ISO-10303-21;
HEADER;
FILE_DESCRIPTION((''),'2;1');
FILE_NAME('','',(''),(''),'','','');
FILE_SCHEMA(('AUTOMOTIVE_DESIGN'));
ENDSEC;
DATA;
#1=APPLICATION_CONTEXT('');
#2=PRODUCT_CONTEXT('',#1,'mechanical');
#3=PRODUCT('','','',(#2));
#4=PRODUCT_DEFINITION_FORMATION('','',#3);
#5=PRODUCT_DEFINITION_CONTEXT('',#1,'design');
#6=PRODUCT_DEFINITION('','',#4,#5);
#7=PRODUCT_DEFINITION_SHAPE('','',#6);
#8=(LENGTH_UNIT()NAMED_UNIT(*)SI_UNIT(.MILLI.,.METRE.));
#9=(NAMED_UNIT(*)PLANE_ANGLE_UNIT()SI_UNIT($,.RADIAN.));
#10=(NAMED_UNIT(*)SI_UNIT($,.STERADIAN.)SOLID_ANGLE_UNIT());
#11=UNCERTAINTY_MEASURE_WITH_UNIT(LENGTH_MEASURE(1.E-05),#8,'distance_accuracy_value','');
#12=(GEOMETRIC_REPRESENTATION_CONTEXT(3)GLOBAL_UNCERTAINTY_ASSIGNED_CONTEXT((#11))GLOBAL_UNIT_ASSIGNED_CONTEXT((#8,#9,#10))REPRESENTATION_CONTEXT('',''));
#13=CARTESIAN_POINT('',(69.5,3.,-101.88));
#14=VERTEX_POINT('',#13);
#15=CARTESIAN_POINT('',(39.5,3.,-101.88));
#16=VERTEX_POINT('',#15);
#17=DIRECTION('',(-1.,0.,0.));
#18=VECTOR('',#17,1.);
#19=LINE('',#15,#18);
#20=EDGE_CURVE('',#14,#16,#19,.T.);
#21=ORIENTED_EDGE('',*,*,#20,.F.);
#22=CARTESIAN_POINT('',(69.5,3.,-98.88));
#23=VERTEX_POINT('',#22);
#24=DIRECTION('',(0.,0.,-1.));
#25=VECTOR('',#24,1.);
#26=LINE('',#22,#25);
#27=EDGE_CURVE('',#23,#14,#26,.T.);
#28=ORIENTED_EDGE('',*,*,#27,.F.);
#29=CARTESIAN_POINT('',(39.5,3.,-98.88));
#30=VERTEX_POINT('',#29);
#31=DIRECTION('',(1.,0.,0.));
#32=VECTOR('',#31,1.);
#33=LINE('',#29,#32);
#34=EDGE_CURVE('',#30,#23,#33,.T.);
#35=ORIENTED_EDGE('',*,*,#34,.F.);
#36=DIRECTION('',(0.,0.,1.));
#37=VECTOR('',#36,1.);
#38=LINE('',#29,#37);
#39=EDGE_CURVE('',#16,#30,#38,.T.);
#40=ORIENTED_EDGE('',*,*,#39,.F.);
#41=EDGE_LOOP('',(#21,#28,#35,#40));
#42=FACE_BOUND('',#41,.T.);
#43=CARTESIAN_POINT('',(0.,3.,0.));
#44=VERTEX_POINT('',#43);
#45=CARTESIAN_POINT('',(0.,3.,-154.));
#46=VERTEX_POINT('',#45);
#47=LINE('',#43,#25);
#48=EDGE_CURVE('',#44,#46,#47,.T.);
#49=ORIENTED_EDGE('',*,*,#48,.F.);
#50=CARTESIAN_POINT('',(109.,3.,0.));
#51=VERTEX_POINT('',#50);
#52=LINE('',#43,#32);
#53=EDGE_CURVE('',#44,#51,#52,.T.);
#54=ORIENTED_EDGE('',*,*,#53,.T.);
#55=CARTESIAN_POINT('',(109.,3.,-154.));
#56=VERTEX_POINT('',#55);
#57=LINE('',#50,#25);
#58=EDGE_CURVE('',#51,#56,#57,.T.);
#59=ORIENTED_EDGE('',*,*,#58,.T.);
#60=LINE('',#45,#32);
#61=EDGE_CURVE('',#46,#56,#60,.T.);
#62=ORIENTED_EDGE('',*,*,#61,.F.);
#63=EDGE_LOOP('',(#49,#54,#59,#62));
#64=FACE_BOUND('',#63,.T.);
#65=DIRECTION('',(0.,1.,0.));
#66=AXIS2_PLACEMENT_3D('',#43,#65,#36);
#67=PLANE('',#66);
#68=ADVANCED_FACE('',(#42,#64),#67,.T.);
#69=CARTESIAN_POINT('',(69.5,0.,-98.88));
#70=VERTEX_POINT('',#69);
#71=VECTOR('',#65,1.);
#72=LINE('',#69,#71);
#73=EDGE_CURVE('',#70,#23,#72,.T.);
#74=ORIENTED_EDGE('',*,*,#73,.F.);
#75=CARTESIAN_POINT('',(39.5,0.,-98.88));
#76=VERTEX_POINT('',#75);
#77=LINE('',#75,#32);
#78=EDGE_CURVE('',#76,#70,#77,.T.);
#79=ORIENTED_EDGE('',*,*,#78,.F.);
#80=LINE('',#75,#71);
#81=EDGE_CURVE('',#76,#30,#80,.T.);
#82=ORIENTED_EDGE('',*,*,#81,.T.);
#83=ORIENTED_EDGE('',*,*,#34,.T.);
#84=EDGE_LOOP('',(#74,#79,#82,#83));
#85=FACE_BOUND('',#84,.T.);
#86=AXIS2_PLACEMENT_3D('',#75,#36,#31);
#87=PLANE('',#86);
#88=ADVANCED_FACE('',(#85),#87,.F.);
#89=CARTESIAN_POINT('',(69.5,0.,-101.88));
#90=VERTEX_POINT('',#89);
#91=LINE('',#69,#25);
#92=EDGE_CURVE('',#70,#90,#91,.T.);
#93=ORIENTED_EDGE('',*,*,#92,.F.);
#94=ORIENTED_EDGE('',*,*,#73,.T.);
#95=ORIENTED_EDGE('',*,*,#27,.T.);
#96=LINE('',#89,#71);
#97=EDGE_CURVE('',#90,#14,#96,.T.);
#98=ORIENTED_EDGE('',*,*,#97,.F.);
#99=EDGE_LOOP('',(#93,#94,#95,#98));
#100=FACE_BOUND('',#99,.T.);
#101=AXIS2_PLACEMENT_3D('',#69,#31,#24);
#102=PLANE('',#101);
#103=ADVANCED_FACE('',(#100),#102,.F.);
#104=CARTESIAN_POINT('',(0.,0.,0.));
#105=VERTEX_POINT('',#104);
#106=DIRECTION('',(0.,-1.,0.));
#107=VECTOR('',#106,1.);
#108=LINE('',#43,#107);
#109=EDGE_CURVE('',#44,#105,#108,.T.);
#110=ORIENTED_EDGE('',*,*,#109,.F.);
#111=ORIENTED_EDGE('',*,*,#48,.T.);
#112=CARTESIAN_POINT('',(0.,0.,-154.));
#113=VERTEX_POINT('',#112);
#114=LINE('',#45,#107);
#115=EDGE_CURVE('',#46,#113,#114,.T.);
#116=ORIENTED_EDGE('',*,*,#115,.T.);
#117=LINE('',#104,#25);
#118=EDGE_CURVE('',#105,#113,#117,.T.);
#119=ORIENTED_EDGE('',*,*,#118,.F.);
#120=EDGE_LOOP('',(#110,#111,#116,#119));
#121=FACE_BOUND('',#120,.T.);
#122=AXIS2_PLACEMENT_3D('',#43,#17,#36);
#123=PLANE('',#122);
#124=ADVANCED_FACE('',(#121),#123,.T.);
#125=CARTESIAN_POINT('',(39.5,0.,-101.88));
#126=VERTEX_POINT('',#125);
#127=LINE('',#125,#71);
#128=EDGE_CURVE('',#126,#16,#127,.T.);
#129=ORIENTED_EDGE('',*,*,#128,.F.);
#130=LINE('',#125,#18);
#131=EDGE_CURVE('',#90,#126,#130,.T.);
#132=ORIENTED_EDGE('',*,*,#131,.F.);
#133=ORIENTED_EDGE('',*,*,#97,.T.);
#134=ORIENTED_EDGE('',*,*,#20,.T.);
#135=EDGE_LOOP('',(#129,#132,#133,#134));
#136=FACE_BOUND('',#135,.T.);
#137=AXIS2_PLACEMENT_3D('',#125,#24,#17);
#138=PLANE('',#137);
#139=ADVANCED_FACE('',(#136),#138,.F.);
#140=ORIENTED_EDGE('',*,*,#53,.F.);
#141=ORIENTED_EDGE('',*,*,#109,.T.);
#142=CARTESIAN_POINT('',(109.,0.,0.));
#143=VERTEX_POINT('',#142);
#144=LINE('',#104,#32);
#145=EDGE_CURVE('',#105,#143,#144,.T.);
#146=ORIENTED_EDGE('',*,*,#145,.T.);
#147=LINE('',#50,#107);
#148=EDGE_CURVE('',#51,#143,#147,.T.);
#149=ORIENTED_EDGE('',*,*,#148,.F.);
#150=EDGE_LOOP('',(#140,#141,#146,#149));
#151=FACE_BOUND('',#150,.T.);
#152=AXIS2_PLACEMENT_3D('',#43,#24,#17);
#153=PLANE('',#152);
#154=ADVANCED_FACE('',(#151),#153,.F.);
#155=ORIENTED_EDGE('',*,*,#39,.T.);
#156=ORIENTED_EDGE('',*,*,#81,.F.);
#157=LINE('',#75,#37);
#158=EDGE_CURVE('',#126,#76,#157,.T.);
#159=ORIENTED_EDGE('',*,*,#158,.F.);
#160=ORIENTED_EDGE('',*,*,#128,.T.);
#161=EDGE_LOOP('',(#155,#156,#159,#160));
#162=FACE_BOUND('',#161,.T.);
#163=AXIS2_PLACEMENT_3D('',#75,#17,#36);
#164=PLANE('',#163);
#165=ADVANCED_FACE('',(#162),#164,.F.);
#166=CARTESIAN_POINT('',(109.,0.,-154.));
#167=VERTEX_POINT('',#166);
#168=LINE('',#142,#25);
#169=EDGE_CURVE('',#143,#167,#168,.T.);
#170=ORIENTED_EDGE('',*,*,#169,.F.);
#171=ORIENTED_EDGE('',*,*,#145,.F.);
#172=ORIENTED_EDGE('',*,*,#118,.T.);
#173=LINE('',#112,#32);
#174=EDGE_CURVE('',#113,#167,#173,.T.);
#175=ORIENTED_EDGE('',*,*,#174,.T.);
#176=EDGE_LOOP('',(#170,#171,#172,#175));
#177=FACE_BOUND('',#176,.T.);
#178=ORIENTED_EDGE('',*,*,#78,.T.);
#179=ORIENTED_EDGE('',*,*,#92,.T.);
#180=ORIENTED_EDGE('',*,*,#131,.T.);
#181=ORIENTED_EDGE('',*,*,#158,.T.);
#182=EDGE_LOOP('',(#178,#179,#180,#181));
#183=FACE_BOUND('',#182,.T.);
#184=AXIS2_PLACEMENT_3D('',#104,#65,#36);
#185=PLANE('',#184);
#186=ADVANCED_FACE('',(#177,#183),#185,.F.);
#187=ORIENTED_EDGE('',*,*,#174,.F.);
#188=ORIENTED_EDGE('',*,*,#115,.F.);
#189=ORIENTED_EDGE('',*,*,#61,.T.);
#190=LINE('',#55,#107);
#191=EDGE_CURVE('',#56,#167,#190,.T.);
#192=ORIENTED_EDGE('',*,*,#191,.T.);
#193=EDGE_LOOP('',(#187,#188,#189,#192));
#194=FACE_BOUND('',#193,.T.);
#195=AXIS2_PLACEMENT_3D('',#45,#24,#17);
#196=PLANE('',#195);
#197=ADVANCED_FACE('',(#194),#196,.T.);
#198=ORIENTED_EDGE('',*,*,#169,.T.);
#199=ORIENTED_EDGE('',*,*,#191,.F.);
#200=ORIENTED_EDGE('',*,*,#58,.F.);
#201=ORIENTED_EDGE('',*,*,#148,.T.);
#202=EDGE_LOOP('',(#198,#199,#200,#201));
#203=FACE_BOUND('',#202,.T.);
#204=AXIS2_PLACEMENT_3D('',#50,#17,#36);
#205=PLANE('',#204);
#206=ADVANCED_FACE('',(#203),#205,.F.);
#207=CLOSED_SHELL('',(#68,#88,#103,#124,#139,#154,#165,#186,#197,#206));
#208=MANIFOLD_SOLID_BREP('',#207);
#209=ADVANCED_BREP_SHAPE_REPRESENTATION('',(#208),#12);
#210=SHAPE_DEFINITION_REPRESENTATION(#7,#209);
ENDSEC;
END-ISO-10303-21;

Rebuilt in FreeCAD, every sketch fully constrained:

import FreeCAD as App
import Part
import Sketcher


def add_polygon(sketch, points):
    """Adds a closed chain of lines whose ends are joined by coincident constraints."""
    first, n = sketch.GeometryCount, len(points)
    for a, b in zip(points, points[1:] + points[:1]):
        sketch.addGeometry(Part.LineSegment(App.Vector(*a, 0), App.Vector(*b, 0)), False)
    for i in range(n):
        sketch.addConstraint(Sketcher.Constraint("Coincident", first + i, 2, first + (i + 1) % n, 1))

doc = App.newDocument("Part")
body = doc.addObject("PartDesign::Body", "Body")

sketch1 = doc.addObject("Sketcher::SketchObject", "Sketch")
body.addObject(sketch1)
sketch1.AttachmentSupport = (doc.XZ_Plane, [""])
sketch1.MapMode = "FlatFace"
add_polygon(sketch1, [(0, -154), (0, 0), (109, 0), (109, -154)])
sketch1.addConstraint(Sketcher.Constraint("Vertical", 0))
sketch1.addConstraint(Sketcher.Constraint("Horizontal", 1))
sketch1.addConstraint(Sketcher.Constraint("Vertical", 2))
sketch1.addConstraint(Sketcher.Constraint("Horizontal", 3))
sketch1.addConstraint(Sketcher.Constraint("Coincident", 0, 2, -1, 1))
sketch1.addConstraint(Sketcher.Constraint("DistanceX", 1, 1, 1, 2, 109.0))
sketch1.addConstraint(Sketcher.Constraint("DistanceY", 0, 1, 0, 2, 154.0))
pad1 = doc.addObject("PartDesign::Pad", "Pad")
body.addObject(pad1)
pad1.Profile = sketch1
pad1.Length = 3
pad1.Reversed = True

sketch2 = doc.addObject("Sketcher::SketchObject", "Sketch001")
body.addObject(sketch2)
sketch2.AttachmentSupport = (doc.XZ_Plane, [""])
sketch2.MapMode = "FlatFace"
sketch2.AttachmentOffset = App.Placement(App.Vector(0, 0, -3), App.Rotation())
add_polygon(sketch2, [(39.5, -101.88), (39.5, -98.88), (69.5, -98.88), (69.5, -101.88)])
sketch2.addConstraint(Sketcher.Constraint("Vertical", 0))
sketch2.addConstraint(Sketcher.Constraint("Horizontal", 1))
sketch2.addConstraint(Sketcher.Constraint("Vertical", 2))
sketch2.addConstraint(Sketcher.Constraint("Horizontal", 3))
sketch2.addConstraint(Sketcher.Constraint("DistanceX", 1, 1, 1, 2, 30.0))
sketch2.addConstraint(Sketcher.Constraint("DistanceY", 0, 1, 0, 2, 3.0))
sketch2.addConstraint(Sketcher.Constraint("DistanceX", -1, 1, 0, 2, 39.5))
sketch2.addConstraint(Sketcher.Constraint("DistanceY", 0, 2, -1, 1, 98.88))
pocket1 = doc.addObject("PartDesign::Pocket", "Pocket")
body.addObject(pocket1)
pocket1.Profile = sketch2
pocket1.Length = 3
pocket1.Reversed = True

doc.recompute()
